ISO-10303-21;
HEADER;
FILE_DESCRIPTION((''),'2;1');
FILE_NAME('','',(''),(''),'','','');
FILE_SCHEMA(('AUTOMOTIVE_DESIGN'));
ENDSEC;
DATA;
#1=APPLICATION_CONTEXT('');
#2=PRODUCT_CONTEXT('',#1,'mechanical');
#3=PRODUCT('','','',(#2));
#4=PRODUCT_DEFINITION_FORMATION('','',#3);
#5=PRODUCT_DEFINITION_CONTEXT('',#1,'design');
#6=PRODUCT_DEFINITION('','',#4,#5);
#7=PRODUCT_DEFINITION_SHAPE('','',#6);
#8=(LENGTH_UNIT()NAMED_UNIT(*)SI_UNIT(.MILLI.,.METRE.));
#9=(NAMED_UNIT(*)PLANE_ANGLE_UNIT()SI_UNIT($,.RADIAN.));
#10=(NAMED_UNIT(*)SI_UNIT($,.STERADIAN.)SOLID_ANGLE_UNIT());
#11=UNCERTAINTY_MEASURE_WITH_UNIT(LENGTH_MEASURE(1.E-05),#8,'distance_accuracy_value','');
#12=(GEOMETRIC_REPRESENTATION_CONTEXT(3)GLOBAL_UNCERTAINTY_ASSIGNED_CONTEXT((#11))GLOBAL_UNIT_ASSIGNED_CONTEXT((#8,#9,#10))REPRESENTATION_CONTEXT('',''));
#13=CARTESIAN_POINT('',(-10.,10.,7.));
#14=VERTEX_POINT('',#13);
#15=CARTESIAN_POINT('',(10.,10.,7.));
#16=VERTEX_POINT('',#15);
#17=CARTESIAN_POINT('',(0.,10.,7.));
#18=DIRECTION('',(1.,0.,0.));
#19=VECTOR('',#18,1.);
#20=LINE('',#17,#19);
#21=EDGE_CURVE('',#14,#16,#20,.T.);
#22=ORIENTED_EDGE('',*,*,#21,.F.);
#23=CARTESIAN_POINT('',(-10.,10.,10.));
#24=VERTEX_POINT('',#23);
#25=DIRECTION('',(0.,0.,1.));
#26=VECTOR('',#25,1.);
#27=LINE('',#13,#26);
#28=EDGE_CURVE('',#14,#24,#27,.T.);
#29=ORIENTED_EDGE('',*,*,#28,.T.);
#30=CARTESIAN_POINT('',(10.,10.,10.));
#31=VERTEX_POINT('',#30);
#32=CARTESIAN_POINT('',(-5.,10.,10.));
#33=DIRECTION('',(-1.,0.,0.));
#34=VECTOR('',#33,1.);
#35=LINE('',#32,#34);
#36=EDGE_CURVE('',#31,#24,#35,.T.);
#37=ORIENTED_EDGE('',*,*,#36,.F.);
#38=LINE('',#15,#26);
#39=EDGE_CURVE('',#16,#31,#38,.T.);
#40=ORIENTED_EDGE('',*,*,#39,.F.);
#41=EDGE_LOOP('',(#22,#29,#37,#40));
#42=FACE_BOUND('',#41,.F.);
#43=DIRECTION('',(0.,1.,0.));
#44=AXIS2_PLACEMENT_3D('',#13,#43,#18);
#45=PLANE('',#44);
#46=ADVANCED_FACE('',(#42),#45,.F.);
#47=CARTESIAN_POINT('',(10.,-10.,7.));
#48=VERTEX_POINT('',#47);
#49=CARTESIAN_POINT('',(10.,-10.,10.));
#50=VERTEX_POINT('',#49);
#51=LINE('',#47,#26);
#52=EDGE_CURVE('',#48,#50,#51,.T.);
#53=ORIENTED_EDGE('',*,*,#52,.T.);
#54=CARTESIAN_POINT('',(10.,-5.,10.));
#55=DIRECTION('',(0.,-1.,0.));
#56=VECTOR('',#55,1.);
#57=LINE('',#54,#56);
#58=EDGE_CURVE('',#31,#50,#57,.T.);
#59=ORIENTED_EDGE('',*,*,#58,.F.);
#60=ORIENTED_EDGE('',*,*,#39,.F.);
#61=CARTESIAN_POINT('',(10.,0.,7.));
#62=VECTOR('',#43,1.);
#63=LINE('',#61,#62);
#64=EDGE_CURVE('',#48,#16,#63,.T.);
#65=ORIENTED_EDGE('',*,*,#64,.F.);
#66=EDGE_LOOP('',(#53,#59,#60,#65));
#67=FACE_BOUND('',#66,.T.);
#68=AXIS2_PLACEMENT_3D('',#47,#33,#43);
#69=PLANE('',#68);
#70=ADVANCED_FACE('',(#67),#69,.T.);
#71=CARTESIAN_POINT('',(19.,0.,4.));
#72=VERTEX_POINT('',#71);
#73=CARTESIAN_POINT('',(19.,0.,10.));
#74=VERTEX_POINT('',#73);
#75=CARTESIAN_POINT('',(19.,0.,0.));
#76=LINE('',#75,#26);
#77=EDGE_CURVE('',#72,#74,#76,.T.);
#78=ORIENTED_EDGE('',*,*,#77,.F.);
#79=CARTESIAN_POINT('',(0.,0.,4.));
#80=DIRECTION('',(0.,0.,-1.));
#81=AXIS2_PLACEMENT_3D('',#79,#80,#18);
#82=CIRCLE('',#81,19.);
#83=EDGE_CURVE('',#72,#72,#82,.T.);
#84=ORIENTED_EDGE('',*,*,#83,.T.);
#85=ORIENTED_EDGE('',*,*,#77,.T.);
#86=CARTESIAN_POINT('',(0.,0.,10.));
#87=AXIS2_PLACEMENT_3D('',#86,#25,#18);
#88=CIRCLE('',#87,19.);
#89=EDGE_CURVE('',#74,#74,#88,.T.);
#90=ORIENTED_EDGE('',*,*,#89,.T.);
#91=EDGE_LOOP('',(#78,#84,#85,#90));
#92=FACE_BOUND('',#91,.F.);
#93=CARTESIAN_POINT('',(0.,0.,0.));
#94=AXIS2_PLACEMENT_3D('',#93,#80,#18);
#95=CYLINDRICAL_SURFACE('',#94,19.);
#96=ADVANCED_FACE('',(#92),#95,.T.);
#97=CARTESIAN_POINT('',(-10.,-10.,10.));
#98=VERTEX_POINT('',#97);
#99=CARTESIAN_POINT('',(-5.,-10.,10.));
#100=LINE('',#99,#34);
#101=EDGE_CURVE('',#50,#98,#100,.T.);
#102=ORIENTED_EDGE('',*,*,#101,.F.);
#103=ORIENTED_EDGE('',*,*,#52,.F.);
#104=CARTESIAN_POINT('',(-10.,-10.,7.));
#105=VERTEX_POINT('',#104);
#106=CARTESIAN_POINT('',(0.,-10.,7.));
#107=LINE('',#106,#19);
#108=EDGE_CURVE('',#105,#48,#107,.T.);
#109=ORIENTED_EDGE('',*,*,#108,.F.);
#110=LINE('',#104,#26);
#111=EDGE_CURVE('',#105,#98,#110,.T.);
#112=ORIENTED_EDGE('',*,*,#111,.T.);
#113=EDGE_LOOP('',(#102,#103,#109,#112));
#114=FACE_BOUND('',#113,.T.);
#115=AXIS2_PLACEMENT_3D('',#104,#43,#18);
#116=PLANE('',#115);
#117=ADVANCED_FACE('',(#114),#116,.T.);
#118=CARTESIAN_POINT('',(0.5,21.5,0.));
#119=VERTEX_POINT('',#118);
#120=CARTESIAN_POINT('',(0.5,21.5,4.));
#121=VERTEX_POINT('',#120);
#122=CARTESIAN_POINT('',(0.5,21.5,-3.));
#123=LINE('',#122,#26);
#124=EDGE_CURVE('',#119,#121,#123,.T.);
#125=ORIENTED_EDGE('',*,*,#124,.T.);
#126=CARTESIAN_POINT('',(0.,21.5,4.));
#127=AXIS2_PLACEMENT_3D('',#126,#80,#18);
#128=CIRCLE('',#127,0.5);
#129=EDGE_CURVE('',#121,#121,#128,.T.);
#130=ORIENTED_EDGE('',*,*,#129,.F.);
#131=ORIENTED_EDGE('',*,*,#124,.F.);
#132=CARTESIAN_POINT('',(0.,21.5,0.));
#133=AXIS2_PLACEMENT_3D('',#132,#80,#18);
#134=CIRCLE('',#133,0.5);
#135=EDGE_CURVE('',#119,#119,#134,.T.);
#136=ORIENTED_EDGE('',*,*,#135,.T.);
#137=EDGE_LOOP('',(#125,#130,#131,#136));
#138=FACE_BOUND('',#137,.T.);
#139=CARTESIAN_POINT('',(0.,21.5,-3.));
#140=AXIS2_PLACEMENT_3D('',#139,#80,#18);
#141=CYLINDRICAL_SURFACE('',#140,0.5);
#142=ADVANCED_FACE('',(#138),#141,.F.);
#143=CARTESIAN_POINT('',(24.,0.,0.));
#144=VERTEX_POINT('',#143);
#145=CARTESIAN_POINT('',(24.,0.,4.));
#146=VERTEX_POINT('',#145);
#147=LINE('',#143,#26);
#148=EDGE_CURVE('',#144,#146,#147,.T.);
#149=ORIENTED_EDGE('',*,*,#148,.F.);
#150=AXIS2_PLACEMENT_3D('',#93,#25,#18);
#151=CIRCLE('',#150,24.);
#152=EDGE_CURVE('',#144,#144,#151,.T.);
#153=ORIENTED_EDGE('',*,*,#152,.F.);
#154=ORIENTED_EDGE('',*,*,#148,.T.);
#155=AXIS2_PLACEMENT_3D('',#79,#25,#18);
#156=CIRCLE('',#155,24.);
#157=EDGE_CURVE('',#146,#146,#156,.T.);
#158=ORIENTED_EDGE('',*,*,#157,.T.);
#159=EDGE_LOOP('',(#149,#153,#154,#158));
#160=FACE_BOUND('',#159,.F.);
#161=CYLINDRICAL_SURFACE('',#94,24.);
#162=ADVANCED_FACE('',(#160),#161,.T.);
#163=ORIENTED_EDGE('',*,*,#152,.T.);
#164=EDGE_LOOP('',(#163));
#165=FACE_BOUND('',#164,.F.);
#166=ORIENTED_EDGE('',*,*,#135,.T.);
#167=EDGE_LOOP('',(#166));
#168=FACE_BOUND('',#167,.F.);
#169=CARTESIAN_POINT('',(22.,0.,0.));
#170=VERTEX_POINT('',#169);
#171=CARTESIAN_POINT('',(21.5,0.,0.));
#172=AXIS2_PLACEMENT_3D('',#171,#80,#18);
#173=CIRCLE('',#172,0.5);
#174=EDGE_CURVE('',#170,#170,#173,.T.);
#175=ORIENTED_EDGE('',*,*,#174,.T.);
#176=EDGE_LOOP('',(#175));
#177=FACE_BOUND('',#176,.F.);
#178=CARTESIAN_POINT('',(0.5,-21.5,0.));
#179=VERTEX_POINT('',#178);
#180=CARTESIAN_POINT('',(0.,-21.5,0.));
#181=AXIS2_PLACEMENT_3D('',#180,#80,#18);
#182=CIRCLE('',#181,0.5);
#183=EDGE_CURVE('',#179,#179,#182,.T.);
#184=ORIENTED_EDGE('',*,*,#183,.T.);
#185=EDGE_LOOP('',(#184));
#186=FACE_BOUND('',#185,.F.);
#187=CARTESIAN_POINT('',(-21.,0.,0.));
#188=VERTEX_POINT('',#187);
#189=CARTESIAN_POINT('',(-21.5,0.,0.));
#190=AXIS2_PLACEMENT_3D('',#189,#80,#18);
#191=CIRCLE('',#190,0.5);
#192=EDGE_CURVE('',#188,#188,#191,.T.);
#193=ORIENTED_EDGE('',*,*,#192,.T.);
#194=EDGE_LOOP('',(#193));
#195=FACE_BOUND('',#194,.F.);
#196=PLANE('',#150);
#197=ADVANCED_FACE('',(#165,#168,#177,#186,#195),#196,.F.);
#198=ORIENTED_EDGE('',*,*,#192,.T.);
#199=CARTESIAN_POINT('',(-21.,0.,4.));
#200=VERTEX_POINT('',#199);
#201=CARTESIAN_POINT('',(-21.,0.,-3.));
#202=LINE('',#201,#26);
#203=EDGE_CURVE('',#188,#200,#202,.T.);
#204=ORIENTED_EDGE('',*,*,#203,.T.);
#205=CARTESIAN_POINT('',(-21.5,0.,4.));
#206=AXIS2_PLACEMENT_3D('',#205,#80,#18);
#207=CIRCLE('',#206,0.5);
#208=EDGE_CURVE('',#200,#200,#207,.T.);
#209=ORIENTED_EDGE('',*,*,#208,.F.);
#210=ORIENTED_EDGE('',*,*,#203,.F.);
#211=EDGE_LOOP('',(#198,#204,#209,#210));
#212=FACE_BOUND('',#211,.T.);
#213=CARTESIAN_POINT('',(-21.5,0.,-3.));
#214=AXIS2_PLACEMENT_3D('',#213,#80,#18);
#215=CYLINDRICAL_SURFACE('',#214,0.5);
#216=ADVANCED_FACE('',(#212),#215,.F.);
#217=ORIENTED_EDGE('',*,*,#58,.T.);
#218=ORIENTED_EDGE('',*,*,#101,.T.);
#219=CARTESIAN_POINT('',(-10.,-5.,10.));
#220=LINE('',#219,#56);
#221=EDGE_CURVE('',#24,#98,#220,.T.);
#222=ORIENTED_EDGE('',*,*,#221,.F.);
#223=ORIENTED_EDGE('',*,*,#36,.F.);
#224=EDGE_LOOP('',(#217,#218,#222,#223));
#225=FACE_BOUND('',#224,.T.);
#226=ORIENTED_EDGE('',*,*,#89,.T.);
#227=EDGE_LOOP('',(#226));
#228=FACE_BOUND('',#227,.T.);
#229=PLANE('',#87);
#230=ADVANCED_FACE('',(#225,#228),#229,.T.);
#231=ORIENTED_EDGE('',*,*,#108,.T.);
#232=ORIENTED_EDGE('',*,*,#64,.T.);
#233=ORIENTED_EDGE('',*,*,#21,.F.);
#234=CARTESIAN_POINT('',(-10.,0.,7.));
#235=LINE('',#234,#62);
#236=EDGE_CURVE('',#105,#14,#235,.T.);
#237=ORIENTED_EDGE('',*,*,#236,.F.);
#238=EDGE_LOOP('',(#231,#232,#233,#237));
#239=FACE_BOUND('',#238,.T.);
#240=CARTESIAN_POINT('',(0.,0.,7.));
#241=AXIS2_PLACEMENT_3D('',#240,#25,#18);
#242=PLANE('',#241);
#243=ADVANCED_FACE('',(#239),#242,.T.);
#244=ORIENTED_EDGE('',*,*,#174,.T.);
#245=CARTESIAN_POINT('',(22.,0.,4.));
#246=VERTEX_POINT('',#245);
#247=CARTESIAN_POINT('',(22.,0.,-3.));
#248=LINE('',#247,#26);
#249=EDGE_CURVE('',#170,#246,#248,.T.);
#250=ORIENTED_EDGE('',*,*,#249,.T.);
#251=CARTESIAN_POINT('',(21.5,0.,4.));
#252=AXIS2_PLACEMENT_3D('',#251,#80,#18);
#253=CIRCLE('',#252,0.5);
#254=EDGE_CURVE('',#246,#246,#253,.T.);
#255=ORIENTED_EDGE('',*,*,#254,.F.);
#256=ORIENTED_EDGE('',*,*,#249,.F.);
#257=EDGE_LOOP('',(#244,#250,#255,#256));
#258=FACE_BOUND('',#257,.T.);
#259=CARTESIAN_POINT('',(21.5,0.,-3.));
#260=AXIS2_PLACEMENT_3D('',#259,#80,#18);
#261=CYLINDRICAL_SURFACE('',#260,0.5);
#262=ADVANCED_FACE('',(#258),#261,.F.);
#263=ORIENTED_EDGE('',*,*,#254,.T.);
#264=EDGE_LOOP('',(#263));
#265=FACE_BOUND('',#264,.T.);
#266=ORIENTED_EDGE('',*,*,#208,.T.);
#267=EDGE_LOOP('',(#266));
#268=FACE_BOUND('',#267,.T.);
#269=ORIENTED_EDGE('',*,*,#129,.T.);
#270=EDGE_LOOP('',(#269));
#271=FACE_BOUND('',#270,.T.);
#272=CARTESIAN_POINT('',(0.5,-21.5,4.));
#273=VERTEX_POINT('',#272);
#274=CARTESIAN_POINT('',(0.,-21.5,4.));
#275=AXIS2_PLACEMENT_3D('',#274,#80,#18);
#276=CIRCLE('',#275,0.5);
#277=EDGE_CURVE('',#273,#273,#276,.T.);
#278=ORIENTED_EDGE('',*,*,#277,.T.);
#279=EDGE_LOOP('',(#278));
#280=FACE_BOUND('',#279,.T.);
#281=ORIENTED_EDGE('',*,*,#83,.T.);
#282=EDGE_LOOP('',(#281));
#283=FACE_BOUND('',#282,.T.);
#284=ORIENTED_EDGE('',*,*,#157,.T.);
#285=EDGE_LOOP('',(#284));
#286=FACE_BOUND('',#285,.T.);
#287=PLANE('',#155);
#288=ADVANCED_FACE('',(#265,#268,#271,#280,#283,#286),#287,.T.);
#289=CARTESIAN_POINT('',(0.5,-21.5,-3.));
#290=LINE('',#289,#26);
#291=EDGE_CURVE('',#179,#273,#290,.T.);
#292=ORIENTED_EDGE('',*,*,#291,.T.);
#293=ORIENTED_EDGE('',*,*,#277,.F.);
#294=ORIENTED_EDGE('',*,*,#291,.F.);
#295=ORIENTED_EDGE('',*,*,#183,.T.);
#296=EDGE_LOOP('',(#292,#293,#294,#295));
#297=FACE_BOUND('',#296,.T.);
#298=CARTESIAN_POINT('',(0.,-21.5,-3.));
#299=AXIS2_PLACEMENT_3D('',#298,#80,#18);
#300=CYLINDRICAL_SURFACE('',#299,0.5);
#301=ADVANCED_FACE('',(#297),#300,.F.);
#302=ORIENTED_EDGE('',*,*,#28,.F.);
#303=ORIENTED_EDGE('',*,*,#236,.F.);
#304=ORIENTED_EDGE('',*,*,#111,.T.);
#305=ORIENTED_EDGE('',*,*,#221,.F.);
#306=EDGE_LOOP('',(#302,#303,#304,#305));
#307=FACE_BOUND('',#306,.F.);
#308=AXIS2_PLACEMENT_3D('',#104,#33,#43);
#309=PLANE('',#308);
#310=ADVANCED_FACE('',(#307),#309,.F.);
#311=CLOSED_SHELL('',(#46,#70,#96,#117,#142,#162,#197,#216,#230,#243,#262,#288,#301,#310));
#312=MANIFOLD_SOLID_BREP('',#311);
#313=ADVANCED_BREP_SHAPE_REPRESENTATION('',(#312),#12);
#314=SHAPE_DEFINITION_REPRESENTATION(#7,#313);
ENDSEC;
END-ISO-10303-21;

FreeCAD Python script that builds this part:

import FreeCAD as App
import Part
import Sketcher
from FreeCAD import Vector
Q = App.Units.Quantity

doc = App.newDocument("Part")
body = doc.addObject("PartDesign::Body", "Body")

sketch1 = body.newObject("Sketcher::SketchObject", "Sketch")
sketch1.AttachmentSupport = (doc.getObject("XY_Plane"), [""])
sketch1.MapMode = "FlatFace"
sketch1.AttachmentOffset = App.Placement(Vector(0, 0, 7), App.Rotation())
sketch1.addGeometry(Part.LineSegment(Vector(-10, 10, 0), Vector(-10, -10, 0)), False)
sketch1.addGeometry(Part.LineSegment(Vector(-10, -10, 0), Vector(10, -10, 0)), False)
sketch1.addGeometry(Part.LineSegment(Vector(10, -10, 0), Vector(10, 10, 0)), False)
sketch1.addGeometry(Part.LineSegment(Vector(10, 10, 0), Vector(-10, 10, 0)), False)
sketch1.addConstraint(Sketcher.Constraint("Coincident", 0, 2, 1, 1))
sketch1.addConstraint(Sketcher.Constraint("Coincident", 1, 2, 2, 1))
sketch1.addConstraint(Sketcher.Constraint("Coincident", 2, 2, 3, 1))
sketch1.addConstraint(Sketcher.Constraint("Coincident", 3, 2, 0, 1))
sketch1.addConstraint(Sketcher.Constraint("Vertical", 0))
sketch1.addConstraint(Sketcher.Constraint("Horizontal", 1))
sketch1.addConstraint(Sketcher.Constraint("Vertical", 2))
sketch1.addConstraint(Sketcher.Constraint("Horizontal", 3))
sketch1.addConstraint(Sketcher.Constraint("Symmetric", 0, 2, 2, 2, -1, 1))
sketch1.addConstraint(Sketcher.Constraint("Equal", 3, 0))
sketch1.addConstraint(Sketcher.Constraint("DistanceX", 1, 1, 1, 2, Q("20 mm")))
pad1 = body.newObject("PartDesign::Pad", "Pad")
pad1.Profile = sketch1
pad1.Length = 20
body2 = doc.addObject("PartDesign::Body", "Body001")

sketch2 = body2.newObject("Sketcher::SketchObject", "Sketch001")
sketch2.AttachmentSupport = (doc.getObject("XY_Plane001"), [""])
sketch2.MapMode = "FlatFace"
sketch2.addGeometry(Part.Circle(Vector(0, 0, 0), Vector(0, 0, 1), 19), False)
sketch2.addConstraint(Sketcher.Constraint("Coincident", 0, 3, -1, 1))
sketch2.addConstraint(Sketcher.Constraint("Diameter", 0, Q("38 mm")))
pad2 = body2.newObject("PartDesign::Pad", "Pad001")
pad2.Profile = sketch2
pad2.Length = 10
body3 = doc.addObject("PartDesign::Body", "Body002")

sketch3 = body3.newObject("Sketcher::SketchObject", "Sketch002")
sketch3.AttachmentSupport = (doc.getObject("XY_Plane002"), [""])
sketch3.MapMode = "FlatFace"
sketch3.AttachmentOffset = App.Placement(Vector(0, 0, -3), App.Rotation())
sketch3.addGeometry(Part.Circle(Vector(-21.5, 0, 0), Vector(0, 0, 1), 0.5), False)
sketch3.addConstraint(Sketcher.Constraint("PointOnObject", 0, 3, -1))
sketch3.addConstraint(Sketcher.Constraint("Diameter", 0, Q("1 mm")))
sketch3.addConstraint(Sketcher.Constraint("DistanceX", 0, 3, -1, 1, Q("21.5 mm")))
pad3 = body3.newObject("PartDesign::Pad", "Pad002")
pad3.Profile = sketch3
pad3.Length = 10
body4 = doc.addObject("PartDesign::Body", "Body003")

sketch4 = body4.newObject("Sketcher::SketchObject", "Sketch003")
sketch4.AttachmentSupport = (doc.getObject("XY_Plane003"), [""])
sketch4.MapMode = "FlatFace"
sketch4.AttachmentOffset = App.Placement(Vector(0, 0, -3), App.Rotation())
sketch4.addGeometry(Part.Circle(Vector(0, 21.5, 0), Vector(0, 0, 1), 0.5), False)
sketch4.addConstraint(Sketcher.Constraint("PointOnObject", 0, 3, -2))
sketch4.addConstraint(Sketcher.Constraint("Diameter", 0, Q("1 mm")))
sketch4.addConstraint(Sketcher.Constraint("DistanceY", -1, 1, 0, 3, Q("21.5 mm")))
pad4 = body4.newObject("PartDesign::Pad", "Pad003")
pad4.Profile = sketch4
pad4.Length = 10
body5 = doc.addObject("PartDesign::Body", "Body004")

sketch5 = body5.newObject("Sketcher::SketchObject", "Sketch004")
sketch5.AttachmentSupport = (doc.getObject("XY_Plane004"), [""])
sketch5.MapMode = "FlatFace"
sketch5.AttachmentOffset = App.Placement(Vector(0, 0, -3), App.Rotation())
sketch5.addGeometry(Part.Circle(Vector(0, -21.5, 0), Vector(0, 0, 1), 0.5), False)
sketch5.addConstraint(Sketcher.Constraint("PointOnObject", 0, 3, -2))
sketch5.addConstraint(Sketcher.Constraint("Diameter", 0, Q("1 mm")))
sketch5.addConstraint(Sketcher.Constraint("DistanceY", 0, 3, -1, 1, Q("21.5 mm")))
pad5 = body5.newObject("PartDesign::Pad", "Pad004")
pad5.Profile = sketch5
pad5.Length = 10
body6 = doc.addObject("PartDesign::Body", "Body005")
body6.AllowCompound = True

sketch6 = body6.newObject("Sketcher::SketchObject", "Sketch005")
sketch6.AttachmentSupport = (doc.getObject("XY_Plane005"), [""])
sketch6.MapMode = "FlatFace"
sketch6.AttachmentOffset = App.Placement(Vector(0, 0, -3), App.Rotation())
sketch6.addGeometry(Part.Circle(Vector(21.5, 0, 0), Vector(0, 0, 1), 0.5), False)
sketch6.addConstraint(Sketcher.Constraint("PointOnObject", 0, 3, -1))
sketch6.addConstraint(Sketcher.Constraint("Diameter", 0, Q("1 mm")))
sketch6.addConstraint(Sketcher.Constraint("DistanceX", -1, 1, 0, 3, Q("21.5 mm")))
pad6 = body6.newObject("PartDesign::Pad", "Pad005")
pad6.Profile = sketch6
pad6.Length = 10
doc.recompute()

boolean = body6.newObject("PartDesign::Boolean", "Boolean")
boolean.Type = "Fuse"
boolean.addObjects([body3])
doc.recompute()

boolean2 = body6.newObject("PartDesign::Boolean", "Boolean001")
boolean2.Type = "Fuse"
boolean2.addObjects([body4])
doc.recompute()

boolean3 = body6.newObject("PartDesign::Boolean", "Boolean002")
boolean3.Type = "Fuse"
boolean3.addObjects([body5])
body7 = doc.addObject("PartDesign::Body", "Body006")

sketch7 = body7.newObject("Sketcher::SketchObject", "Sketch006")
sketch7.AttachmentSupport = (doc.getObject("XY_Plane006"), [""])
sketch7.MapMode = "FlatFace"
sketch7.addGeometry(Part.Circle(Vector(0, 0, 0), Vector(0, 0, 1), 24), False)
sketch7.addConstraint(Sketcher.Constraint("Coincident", 0, 3, -1, 1))
sketch7.addConstraint(Sketcher.Constraint("Diameter", 0, Q("48 mm")))
pad7 = body7.newObject("PartDesign::Pad", "Pad006")
pad7.Profile = sketch7
pad7.Length = 4
doc.recompute()

boolean4 = body7.newObject("PartDesign::Boolean", "Boolean003")
boolean4.Type = "Cut"
boolean4.addObjects([body6])
doc.recompute()

boolean5 = body7.newObject("PartDesign::Boolean", "Boolean004")
boolean5.Type = "Fuse"
boolean5.addObjects([body2])
doc.recompute()

boolean6 = body7.newObject("PartDesign::Boolean", "Boolean005")
boolean6.Type = "Cut"
boolean6.addObjects([body])

doc.recompute()
